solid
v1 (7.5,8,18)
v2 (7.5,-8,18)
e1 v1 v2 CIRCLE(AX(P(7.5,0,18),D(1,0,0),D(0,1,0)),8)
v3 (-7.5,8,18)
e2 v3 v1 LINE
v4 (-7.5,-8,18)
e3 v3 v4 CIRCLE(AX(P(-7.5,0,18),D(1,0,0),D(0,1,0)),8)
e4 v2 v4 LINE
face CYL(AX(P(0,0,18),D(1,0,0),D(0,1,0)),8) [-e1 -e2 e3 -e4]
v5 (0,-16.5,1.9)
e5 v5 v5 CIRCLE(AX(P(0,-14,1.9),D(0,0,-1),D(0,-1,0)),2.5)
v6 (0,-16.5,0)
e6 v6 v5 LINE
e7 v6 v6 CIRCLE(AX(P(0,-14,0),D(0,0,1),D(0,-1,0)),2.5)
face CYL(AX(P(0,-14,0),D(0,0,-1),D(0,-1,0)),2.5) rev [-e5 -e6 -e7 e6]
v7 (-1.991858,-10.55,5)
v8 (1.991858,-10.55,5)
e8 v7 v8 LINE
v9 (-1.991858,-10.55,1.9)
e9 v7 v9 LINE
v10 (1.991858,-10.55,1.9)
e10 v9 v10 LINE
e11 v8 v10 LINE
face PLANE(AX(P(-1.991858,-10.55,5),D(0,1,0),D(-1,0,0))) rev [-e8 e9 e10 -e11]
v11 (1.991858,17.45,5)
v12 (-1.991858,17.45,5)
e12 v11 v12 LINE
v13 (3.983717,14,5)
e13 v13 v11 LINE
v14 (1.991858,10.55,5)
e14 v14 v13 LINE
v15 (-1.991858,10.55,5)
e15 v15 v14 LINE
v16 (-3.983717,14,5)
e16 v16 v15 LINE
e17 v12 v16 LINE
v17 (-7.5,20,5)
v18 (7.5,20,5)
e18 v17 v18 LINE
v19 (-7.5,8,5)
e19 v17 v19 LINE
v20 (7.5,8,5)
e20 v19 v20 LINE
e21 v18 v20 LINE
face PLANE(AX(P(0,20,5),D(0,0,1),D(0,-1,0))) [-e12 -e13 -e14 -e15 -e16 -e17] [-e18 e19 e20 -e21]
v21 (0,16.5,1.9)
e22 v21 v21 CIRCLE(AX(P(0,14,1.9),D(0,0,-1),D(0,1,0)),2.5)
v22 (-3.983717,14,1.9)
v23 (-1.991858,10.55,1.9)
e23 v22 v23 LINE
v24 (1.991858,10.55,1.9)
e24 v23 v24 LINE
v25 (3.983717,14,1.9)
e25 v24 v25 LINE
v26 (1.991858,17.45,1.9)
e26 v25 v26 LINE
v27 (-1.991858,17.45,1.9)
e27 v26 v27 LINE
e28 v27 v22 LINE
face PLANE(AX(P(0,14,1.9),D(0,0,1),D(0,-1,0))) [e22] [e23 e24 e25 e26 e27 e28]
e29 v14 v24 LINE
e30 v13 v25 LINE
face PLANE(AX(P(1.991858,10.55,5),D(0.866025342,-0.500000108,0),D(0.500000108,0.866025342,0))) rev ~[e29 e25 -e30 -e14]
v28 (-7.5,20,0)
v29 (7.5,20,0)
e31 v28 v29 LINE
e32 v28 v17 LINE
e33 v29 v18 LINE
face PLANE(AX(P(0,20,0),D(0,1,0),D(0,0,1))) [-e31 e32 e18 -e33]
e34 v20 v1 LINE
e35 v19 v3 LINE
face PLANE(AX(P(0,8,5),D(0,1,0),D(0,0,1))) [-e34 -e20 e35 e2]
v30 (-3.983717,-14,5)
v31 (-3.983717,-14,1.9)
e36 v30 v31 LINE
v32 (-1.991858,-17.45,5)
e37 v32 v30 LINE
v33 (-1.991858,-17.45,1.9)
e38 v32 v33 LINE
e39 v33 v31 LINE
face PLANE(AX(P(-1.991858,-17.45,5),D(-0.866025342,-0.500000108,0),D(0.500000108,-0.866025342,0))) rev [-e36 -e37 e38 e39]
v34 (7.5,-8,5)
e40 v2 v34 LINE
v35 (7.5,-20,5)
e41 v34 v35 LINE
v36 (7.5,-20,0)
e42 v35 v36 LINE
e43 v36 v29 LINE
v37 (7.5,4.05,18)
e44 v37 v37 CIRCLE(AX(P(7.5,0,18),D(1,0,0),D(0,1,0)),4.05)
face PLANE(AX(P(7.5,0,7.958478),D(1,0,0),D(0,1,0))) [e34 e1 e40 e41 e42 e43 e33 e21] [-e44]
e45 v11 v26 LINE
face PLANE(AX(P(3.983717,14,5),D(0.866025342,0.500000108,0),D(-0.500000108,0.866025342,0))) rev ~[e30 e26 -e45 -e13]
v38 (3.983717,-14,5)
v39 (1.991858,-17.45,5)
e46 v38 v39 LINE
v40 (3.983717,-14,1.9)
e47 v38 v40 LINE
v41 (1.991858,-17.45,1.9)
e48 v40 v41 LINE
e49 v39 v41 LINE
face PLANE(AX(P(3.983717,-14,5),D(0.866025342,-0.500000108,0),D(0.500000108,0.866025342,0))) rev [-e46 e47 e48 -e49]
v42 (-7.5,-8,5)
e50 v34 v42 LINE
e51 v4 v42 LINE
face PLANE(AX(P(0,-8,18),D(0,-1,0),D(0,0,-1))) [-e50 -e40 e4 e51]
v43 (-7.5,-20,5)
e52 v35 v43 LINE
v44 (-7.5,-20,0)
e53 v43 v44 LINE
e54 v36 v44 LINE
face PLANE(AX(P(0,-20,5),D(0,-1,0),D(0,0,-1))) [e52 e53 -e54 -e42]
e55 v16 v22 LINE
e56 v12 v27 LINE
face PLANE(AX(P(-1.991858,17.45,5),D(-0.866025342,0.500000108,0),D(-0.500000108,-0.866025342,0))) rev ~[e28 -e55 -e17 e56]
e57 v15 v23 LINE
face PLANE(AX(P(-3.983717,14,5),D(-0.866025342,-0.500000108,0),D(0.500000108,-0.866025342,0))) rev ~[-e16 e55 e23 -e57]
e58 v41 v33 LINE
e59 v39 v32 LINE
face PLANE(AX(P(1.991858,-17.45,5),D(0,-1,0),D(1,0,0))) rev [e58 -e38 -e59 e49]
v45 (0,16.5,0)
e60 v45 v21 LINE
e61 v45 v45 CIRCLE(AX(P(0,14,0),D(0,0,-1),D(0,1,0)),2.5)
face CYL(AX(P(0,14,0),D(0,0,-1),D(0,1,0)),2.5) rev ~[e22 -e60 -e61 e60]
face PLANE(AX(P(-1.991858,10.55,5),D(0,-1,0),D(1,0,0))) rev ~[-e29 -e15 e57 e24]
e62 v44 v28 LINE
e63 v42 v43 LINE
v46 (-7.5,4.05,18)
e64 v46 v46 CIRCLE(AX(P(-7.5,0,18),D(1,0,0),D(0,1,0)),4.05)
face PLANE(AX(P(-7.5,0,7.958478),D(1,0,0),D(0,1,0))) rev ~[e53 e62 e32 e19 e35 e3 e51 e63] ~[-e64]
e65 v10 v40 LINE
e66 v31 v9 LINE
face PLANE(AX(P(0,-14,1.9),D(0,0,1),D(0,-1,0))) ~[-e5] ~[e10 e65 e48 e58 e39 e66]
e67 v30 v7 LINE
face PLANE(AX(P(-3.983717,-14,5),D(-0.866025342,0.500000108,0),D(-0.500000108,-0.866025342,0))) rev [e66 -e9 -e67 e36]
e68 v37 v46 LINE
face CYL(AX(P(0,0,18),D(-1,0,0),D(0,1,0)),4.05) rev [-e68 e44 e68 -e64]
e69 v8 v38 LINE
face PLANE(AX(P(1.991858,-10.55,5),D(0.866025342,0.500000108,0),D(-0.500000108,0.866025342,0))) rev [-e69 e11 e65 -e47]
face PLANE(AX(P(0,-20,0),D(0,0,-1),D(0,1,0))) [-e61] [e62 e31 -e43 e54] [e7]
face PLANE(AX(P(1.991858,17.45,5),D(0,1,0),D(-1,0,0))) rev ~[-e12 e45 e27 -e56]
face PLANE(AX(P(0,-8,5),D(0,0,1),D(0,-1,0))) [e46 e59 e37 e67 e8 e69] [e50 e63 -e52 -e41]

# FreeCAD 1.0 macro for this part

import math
import FreeCAD as App
import Part
import Sketcher

V = App.Vector
Q = App.Units.Quantity


def add_polygon(sketch, points):
    """Adds a closed chain of lines whose ends are joined by coincident constraints."""
    first, n = sketch.GeometryCount, len(points)
    for a, b in zip(points, points[1:] + points[:1]):
        sketch.addGeometry(Part.LineSegment(App.Vector(*a, 0), App.Vector(*b, 0)), False)
    for i in range(n):
        sketch.addConstraint(Sketcher.Constraint("Coincident", first + i, 2, first + (i + 1) % n, 1))

doc = App.newDocument("Part")
body = doc.addObject("PartDesign::Body", "Body")

# Sketch on YZ plane
sketch1 = body.newObject("Sketcher::SketchObject", "Sketch")
sketch1.AttachmentSupport = (doc.getObject("YZ_Plane"), [""])
sketch1.MapMode = "FlatFace"
sketch1.addGeometry([
    Part.LineSegment(V(-20, 0, 0), V(20, 0, 0)),  # 0
    Part.LineSegment(V(20, 0, 0), V(20, 5, 0)),  # 1
    Part.LineSegment(V(20, 5, 0), V(8, 5, 0)),  # 2
    Part.LineSegment(V(8, 5, 0), V(8, 18, 0)),  # 3
    Part.ArcOfCircle(Part.Circle(V(0, 18, 0), V(0, 0, 1), 8), math.radians(0), math.radians(180)),  # 4
    Part.LineSegment(V(-8, 18, 0), V(-8, 5, 0)),  # 5
    Part.LineSegment(V(-8, 5, 0), V(-20, 5, 0)),  # 6
    Part.LineSegment(V(-20, 5, 0), V(-20, 0, 0)),  # 7
    Part.Circle(V(0, 18, 0), V(0, 0, 1), 4.05),  # 8
], False)
sketch1.addConstraint([
    Sketcher.Constraint("Coincident", 0, 2, 1, 1),
    Sketcher.Constraint("Coincident", 1, 2, 2, 1),
    Sketcher.Constraint("Coincident", 2, 2, 3, 1),
    Sketcher.Constraint("Tangent", 3, 2, 4, 1),
    Sketcher.Constraint("Tangent", 4, 2, 5, 1),
    Sketcher.Constraint("Coincident", 5, 2, 6, 1),
    Sketcher.Constraint("Coincident", 6, 2, 7, 1),
    Sketcher.Constraint("Coincident", 7, 2, 0, 1),
    Sketcher.Constraint("Horizontal", 0),
    Sketcher.Constraint("Vertical", 1),
    Sketcher.Constraint("Horizontal", 2),
    Sketcher.Constraint("Vertical", 3),
    Sketcher.Constraint("Vertical", 5),
    Sketcher.Constraint("Horizontal", 6),
    Sketcher.Constraint("Vertical", 7),
    Sketcher.Constraint("Coincident", 8, 3, 4, 3),
    Sketcher.Constraint("Symmetric", 0, 2, 7, 2, -1, 1),
    Sketcher.Constraint("Symmetric", 2, 2, 5, 2, -2),
    Sketcher.Constraint("Radius", 4, Q("8 mm")),
    Sketcher.Constraint("Diameter", 8, Q("8.1 mm")),
    Sketcher.Constraint("DistanceX", 0, 1, 0, 2, Q("40 mm")),
    Sketcher.Constraint("DistanceY", 1, 1, 1, 2, Q("5 mm")),
    Sketcher.Constraint("DistanceY", 3, 1, 3, 2, Q("13 mm")),
])
pad1 = body.newObject("PartDesign::Pad", "Pad")
pad1.Profile = sketch1
pad1.Length = 15
pad1.Midplane = True

# Sketch on XY plane
sketch2 = body.newObject("Sketcher::SketchObject", "Sketch001")
sketch2.AttachmentSupport = (doc.getObject("XY_Plane"), [""])
sketch2.MapMode = "FlatFace"
sketch2.AttachmentOffset = App.Placement(V(0, 0, 5), App.Rotation())
add_polygon(sketch2, [(1.991858, 10.55), (3.983717, 14), (1.991858, 17.45), (-1.991858, 17.45), (-3.983717, 14), (-1.991858, 10.55)])  # lines 0-5
sketch2.addConstraint([
    Sketcher.Constraint("Horizontal", 2),
    Sketcher.Constraint("Horizontal", 5),
    Sketcher.Constraint("Symmetric", 0, 2, 3, 2, -2),
    Sketcher.Constraint("Parallel", 0, 3),
    Sketcher.Constraint("Parallel", 1, 4),
    Sketcher.Constraint("Vertical", 2, 2, 4, 2),
    Sketcher.Constraint("Vertical", 1, 2, 5, 2),
    Sketcher.Constraint("Angle", 0, Q("59.999993 deg")),
    Sketcher.Constraint("DistanceY", -1, 1, 0, 2, Q("14 mm")),
    Sketcher.Constraint("DistanceY", 4, 2, 2, 2, Q("6.9 mm")),
    Sketcher.Constraint("DistanceX", 2, 2, 2, 1, Q("3.983716 mm")),
])
pocket1 = body.newObject("PartDesign::Pocket", "Pocket")
pocket1.Profile = sketch2
pocket1.Length = 3.1

# Sketch on XY plane
sketch3 = body.newObject("Sketcher::SketchObject", "Sketch002")
sketch3.AttachmentSupport = (doc.getObject("XY_Plane"), [""])
sketch3.MapMode = "FlatFace"
sketch3.addGeometry(Part.Circle(V(0, 14, 0), V(0, 0, 1), 2.5), False)
sketch3.addConstraint([
    Sketcher.Constraint("PointOnObject", 0, 3, -2),
    Sketcher.Constraint("Diameter", 0, Q("5 mm")),
    Sketcher.Constraint("DistanceY", -1, 1, 0, 3, Q("14 mm")),
])
pocket2 = body.newObject("PartDesign::Pocket", "Pocket001")
pocket2.Profile = sketch3
pocket2.Type = "ThroughAll"
pocket2.Reversed = True
doc.recompute()

mirrored = body.newObject("PartDesign::Mirrored", "Mirrored")
mirrored.Originals = [pocket1, pocket2]
mirrored.MirrorPlane = (doc.getObject("XZ_Plane"), [""])
body.Tip = mirrored

doc.recompute()
